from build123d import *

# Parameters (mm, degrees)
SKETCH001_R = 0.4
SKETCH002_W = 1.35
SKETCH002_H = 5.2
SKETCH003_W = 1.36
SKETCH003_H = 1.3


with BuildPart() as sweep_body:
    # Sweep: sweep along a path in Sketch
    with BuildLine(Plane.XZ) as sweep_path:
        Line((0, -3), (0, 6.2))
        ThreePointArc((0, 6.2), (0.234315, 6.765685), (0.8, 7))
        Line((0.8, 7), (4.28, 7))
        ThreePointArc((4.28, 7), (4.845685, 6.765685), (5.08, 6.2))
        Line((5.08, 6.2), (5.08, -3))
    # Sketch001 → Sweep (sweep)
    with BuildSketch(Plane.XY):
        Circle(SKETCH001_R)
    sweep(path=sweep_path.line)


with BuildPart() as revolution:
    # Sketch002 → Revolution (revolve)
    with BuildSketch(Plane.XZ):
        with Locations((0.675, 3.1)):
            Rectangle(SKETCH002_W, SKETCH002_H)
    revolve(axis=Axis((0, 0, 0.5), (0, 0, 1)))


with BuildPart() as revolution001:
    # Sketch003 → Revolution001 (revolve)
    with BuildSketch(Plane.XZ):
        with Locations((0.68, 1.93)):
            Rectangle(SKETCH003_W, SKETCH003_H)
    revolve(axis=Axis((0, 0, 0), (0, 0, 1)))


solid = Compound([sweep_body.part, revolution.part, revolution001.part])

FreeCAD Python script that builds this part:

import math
import FreeCAD as App
import Part
import Sketcher
from FreeCAD import Vector
Q = App.Units.Quantity

doc = App.newDocument("Part")
body = doc.addObject("PartDesign::Body", "Body")

sketch1 = body.newObject("Sketcher::SketchObject", "Sketch")
sketch1.AttachmentSupport = (doc.getObject("XY_Plane"), [""])
sketch1.MapMode = "FlatFace"
sketch1.addGeometry(Part.Circle(Vector(0, 0, 0), Vector(0, 0, 1), 0.4), False)
sketch1.addConstraint([
    Sketcher.Constraint("Coincident", 0, 3, -1, 1),
    Sketcher.Constraint("Diameter", 0, Q("0.8 mm")),
])

sketch2 = body.newObject("Sketcher::SketchObject", "Sketch001")
sketch2.AttachmentSupport = (doc.getObject("XZ_Plane"), [""])
sketch2.MapMode = "FlatFace"
sketch2.addGeometry([
    Part.LineSegment(Vector(0, -3, 0), Vector(0, 6.2, 0)),
    Part.ArcOfCircle(Part.Circle(Vector(0.8, 6.2, 0), Vector(0, 0, 1), 0.8), math.radians(90), math.radians(180)),
    Part.LineSegment(Vector(0.8, 7, 0), Vector(4.3, 7, 0)),
    Part.ArcOfCircle(Part.Circle(Vector(4.3, 6.2, 0), Vector(0, 0, 1), 0.8), math.radians(0), math.radians(90)),
    Part.LineSegment(Vector(5.1, 6.2, 0), Vector(5.1, -3, 0)),
], False)
sketch2.addConstraint([
    Sketcher.Constraint("Tangent", 0, 2, 1, 2),
    Sketcher.Constraint("Tangent", 1, 1, 2, 1),
    Sketcher.Constraint("Tangent", 2, 2, 3, 2),
    Sketcher.Constraint("Tangent", 3, 1, 4, 1),
    Sketcher.Constraint("Vertical", 0),
    Sketcher.Constraint("Horizontal", 2),
    Sketcher.Constraint("Vertical", 4),
    Sketcher.Constraint("Equal", 1, 3),
    Sketcher.Constraint("PointOnObject", 0, 1, -2),
    Sketcher.Constraint("Horizontal", 0, 1, 4, 2),
    Sketcher.Constraint("Radius", 1, Q("0.800001 mm")),
    Sketcher.Constraint("DistanceY", 0, 1, 0, 2, Q("9.2 mm")),
    Sketcher.Constraint("DistanceY", 0, 1, -1, 1, Q("3 mm")),
    Sketcher.Constraint("DistanceX", 2, 1, 2, 2, Q("3.48 mm")),
])
doc.recompute()

additivepipe = body.newObject("PartDesign::AdditivePipe", "AdditivePipe")
additivepipe.Profile = sketch1
additivepipe.Spine = (sketch2, ["Edge1", "Edge2", "Edge3", "Edge4", "Edge5"])
body2 = doc.addObject("PartDesign::Body", "Body001")

sketch3 = body2.newObject("Sketcher::SketchObject", "Sketch002")
sketch3.AttachmentSupport = (doc.getObject("XZ_Plane001"), [""])
sketch3.MapMode = "FlatFace"
sketch3.addGeometry([
    Part.LineSegment(Vector(0, 5.7, 0), Vector(0, 0.5, 0)),
    Part.LineSegment(Vector(0, 0.5, 0), Vector(1.4, 0.5, 0)),
    Part.LineSegment(Vector(1.4, 0.5, 0), Vector(1.4, 5.7, 0)),
    Part.LineSegment(Vector(1.4, 5.7, 0), Vector(0, 5.7, 0)),
], False)
sketch3.addConstraint([
    Sketcher.Constraint("Coincident", 0, 2, 1, 1),
    Sketcher.Constraint("Coincident", 1, 2, 2, 1),
    Sketcher.Constraint("Coincident", 2, 2, 3, 1),
    Sketcher.Constraint("Coincident", 3, 2, 0, 1),
    Sketcher.Constraint("Vertical", 0),
    Sketcher.Constraint("Horizontal", 1),
    Sketcher.Constraint("Vertical", 2),
    Sketcher.Constraint("Horizontal", 3),
    Sketcher.Constraint("PointOnObject", 0, 2, -2),
    Sketcher.Constraint("DistanceY", 0, 2, 0, 1, Q("5.2 mm")),
    Sketcher.Constraint("DistanceX", 1, 1, 1, 2, Q("1.35 mm")),
    Sketcher.Constraint("DistanceY", -1, 1, 0, 2, Q("0.5 mm")),
])
revolution = body2.newObject("PartDesign::Revolution", "Revolution")
revolution.Profile = sketch3
revolution.ReferenceAxis = (sketch3, ["V_Axis"])
revolution.Angle = 360
body3 = doc.addObject("PartDesign::Body", "Body002")

sketch4 = body3.newObject("Sketcher::SketchObject", "Sketch003")
sketch4.AttachmentSupport = (doc.getObject("XZ_Plane002"), [""])
sketch4.MapMode = "FlatFace"
sketch4.addGeometry([
    Part.LineSegment(Vector(0, 2.6, 0), Vector(0, 1.3, 0)),
    Part.LineSegment(Vector(0, 1.3, 0), Vector(1.4, 1.3, 0)),
    Part.LineSegment(Vector(1.4, 1.3, 0), Vector(1.4, 2.6, 0)),
    Part.LineSegment(Vector(1.4, 2.6, 0), Vector(0, 2.6, 0)),
], False)
sketch4.addConstraint([
    Sketcher.Constraint("Coincident", 0, 2, 1, 1),
    Sketcher.Constraint("Coincident", 1, 2, 2, 1),
    Sketcher.Constraint("Coincident", 2, 2, 3, 1),
    Sketcher.Constraint("Coincident", 3, 2, 0, 1),
    Sketcher.Constraint("Vertical", 0),
    Sketcher.Constraint("Horizontal", 1),
    Sketcher.Constraint("Vertical", 2),
    Sketcher.Constraint("Horizontal", 3),
    Sketcher.Constraint("PointOnObject", 0, 2, -2),
    Sketcher.Constraint("DistanceY", 0, 2, 0, 1, Q("1.3 mm")),
    Sketcher.Constraint("DistanceX", 1, 1, 1, 2, Q("1.36 mm")),
    Sketcher.Constraint("DistanceY", -1, 1, 0, 2, Q("1.28 mm")),
])
revolution2 = body3.newObject("PartDesign::Revolution", "Revolution001")
revolution2.Profile = sketch4
revolution2.ReferenceAxis = (sketch4, ["V_Axis"])
revolution2.Angle = 360

doc.recompute()
